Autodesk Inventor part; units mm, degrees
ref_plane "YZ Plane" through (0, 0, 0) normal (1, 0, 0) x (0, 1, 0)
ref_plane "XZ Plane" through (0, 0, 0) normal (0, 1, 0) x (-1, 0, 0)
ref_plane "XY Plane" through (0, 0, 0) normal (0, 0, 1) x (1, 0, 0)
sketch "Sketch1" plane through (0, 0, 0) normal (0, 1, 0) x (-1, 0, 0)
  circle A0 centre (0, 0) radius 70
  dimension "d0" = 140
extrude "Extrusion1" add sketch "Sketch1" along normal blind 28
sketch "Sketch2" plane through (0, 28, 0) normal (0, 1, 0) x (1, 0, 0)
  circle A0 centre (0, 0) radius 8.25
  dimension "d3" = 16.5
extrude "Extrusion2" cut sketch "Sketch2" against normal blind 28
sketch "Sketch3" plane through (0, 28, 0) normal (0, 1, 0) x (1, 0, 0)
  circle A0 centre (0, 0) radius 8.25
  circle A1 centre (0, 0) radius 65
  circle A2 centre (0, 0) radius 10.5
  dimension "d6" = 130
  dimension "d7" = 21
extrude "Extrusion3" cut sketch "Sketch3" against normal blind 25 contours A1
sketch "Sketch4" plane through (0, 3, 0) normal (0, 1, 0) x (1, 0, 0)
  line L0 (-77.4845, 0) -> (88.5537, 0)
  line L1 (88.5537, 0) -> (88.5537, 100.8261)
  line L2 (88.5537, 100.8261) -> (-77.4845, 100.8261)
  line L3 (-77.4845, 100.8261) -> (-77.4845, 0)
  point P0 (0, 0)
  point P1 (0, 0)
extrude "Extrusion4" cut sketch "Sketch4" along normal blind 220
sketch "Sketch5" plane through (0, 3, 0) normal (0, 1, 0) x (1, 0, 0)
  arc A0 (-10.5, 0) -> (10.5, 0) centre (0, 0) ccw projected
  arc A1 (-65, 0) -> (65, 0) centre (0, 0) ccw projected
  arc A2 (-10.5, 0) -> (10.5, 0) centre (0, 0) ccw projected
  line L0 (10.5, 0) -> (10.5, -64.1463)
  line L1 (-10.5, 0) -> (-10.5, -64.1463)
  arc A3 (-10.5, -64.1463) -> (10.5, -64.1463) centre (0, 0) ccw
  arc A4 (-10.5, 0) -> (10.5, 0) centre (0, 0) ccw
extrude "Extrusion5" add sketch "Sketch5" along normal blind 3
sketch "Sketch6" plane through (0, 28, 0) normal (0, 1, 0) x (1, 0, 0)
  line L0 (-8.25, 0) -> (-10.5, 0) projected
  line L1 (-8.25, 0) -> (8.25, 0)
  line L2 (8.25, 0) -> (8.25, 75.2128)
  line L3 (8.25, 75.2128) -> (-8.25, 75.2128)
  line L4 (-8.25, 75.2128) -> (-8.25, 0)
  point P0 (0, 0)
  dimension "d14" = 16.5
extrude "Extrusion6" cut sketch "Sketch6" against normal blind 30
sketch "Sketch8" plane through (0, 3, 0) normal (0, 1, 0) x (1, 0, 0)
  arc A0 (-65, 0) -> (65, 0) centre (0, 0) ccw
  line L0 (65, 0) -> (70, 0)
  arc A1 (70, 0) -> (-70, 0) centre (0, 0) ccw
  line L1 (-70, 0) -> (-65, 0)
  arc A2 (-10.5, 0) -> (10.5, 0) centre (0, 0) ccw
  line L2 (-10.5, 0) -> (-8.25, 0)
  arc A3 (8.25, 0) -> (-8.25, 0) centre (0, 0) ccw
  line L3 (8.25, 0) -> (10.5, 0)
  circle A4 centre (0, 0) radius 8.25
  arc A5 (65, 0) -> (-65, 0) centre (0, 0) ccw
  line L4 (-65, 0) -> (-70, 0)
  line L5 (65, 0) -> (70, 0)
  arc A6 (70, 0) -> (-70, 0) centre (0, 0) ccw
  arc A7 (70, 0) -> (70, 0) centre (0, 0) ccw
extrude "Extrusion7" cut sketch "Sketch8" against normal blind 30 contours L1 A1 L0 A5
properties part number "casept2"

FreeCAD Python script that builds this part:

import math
import FreeCAD as App
import Part
import Sketcher
Q = App.Units.Quantity

doc = App.newDocument("Part")
body = doc.addObject("PartDesign::Body", "Body")

# Sketch on XZ plane
sketch1 = body.newObject("Sketcher::SketchObject", "Sketch")
sketch1.AttachmentSupport = (doc.getObject("XZ_Plane"), [""])
sketch1.MapMode = "FlatFace"
sketch1.addGeometry(Part.Circle(App.Vector(0, 0, 0), App.Vector(0, 0, 1), 70), False)
sketch1.addConstraint([
    Sketcher.Constraint("Coincident", 0, 3, -1, 1),
    Sketcher.Constraint("Diameter", 0, Q("140 mm")),
])
pad1 = body.newObject("PartDesign::Pad", "Pad")
pad1.Profile = sketch1
pad1.Length = 28
pad1.Reversed = True

# Sketch on XZ plane
sketch2 = body.newObject("Sketcher::SketchObject", "Sketch001")
sketch2.AttachmentSupport = (doc.getObject("XZ_Plane"), [""])
sketch2.MapMode = "FlatFace"
sketch2.AttachmentOffset = App.Placement(App.Vector(0, 0, -28), App.Rotation())
sketch2.addGeometry(Part.Circle(App.Vector(0, 0, 0), App.Vector(0, 0, 1), 8.25), False)
sketch2.addConstraint([
    Sketcher.Constraint("Coincident", 0, 3, -1, 1),
    Sketcher.Constraint("Diameter", 0, Q("16.5 mm")),
])
pocket1 = body.newObject("PartDesign::Pocket", "Pocket")
pocket1.Profile = sketch2
pocket1.Length = 28
pocket1.Reversed = True

# Sketch on XZ plane
sketch3 = body.newObject("Sketcher::SketchObject", "Sketch002")
sketch3.AttachmentSupport = (doc.getObject("XZ_Plane"), [""])
sketch3.MapMode = "FlatFace"
sketch3.AttachmentOffset = App.Placement(App.Vector(0, 0, -28), App.Rotation())
sketch3.addGeometry([
    Part.Circle(App.Vector(0, 0, 0), App.Vector(0, 0, 1), 65),
    Part.Circle(App.Vector(0, 0, 0), App.Vector(0, 0, 1), 10.5),
], False)
sketch3.addConstraint([
    Sketcher.Constraint("Coincident", 0, 3, -1, 1),
    Sketcher.Constraint("Coincident", 1, 3, -1, 1),
    Sketcher.Constraint("Diameter", 0, Q("130 mm")),
    Sketcher.Constraint("Diameter", 1, Q("21 mm")),
])
pocket2 = body.newObject("PartDesign::Pocket", "Pocket001")
pocket2.Profile = sketch3
pocket2.Length = 25
pocket2.Reversed = True

# Sketch on XZ plane
sketch4 = body.newObject("Sketcher::SketchObject", "Sketch003")
sketch4.AttachmentSupport = (doc.getObject("XZ_Plane"), [""])
sketch4.MapMode = "FlatFace"
sketch4.AttachmentOffset = App.Placement(App.Vector(0, 0, -3), App.Rotation())
sketch4.addGeometry([
    Part.LineSegment(App.Vector(-77.4845, -100.8261, 0), App.Vector(-77.4845, 0, 0)),
    Part.LineSegment(App.Vector(-77.4845, 0, 0), App.Vector(88.5537, 0, 0)),
    Part.LineSegment(App.Vector(88.5537, 0, 0), App.Vector(88.5537, -100.8261, 0)),
    Part.LineSegment(App.Vector(88.5537, -100.8261, 0), App.Vector(-77.4845, -100.8261, 0)),
], False)
sketch4.addConstraint([
    Sketcher.Constraint("Coincident", 0, 2, 1, 1),
    Sketcher.Constraint("Coincident", 1, 2, 2, 1),
    Sketcher.Constraint("Coincident", 2, 2, 3, 1),
    Sketcher.Constraint("Coincident", 3, 2, 0, 1),
    Sketcher.Constraint("Vertical", 0),
    Sketcher.Constraint("Horizontal", 1),
    Sketcher.Constraint("Vertical", 2),
    Sketcher.Constraint("Horizontal", 3),
    Sketcher.Constraint("PointOnObject", 0, 2, -1),
    Sketcher.Constraint("DistanceY", 0, 1, 0, 2, Q("100.826 mm")),
    Sketcher.Constraint("DistanceX", 1, 1, 1, 2, Q("166.0382 mm")),
    Sketcher.Constraint("DistanceX", 0, 2, -1, 1, Q("77.4845 mm")),
])
pocket3 = body.newObject("PartDesign::Pocket", "Pocket002")
pocket3.Profile = sketch4
pocket3.Length = 220

# Sketch on XZ plane
sketch5 = body.newObject("Sketcher::SketchObject", "Sketch004")
sketch5.AttachmentSupport = (doc.getObject("XZ_Plane"), [""])
sketch5.MapMode = "FlatFace"
sketch5.AttachmentOffset = App.Placement(App.Vector(0, 0, -3), App.Rotation())
sketch5.addGeometry([
    Part.ArcOfCircle(Part.Circle(App.Vector(0, 0, 0), App.Vector(0, 0, 1), 10.5), math.radians(0), math.radians(180)),
    Part.LineSegment(App.Vector(-10.5, 0, 0), App.Vector(-10.5, 64.1463, 0)),
    Part.ArcOfCircle(Part.Circle(App.Vector(0, 0, 0), App.Vector(0, 0, 1), 65), math.radians(80.703792), math.radians(99.296208)),
    Part.LineSegment(App.Vector(10.5, 64.1463, 0), App.Vector(10.5, 0, 0)),
], False)
sketch5.addConstraint([
    Sketcher.Constraint("Tangent", 0, 2, 1, 1),
    Sketcher.Constraint("Coincident", 1, 2, 2, 2),
    Sketcher.Constraint("Coincident", 2, 1, 3, 1),
    Sketcher.Constraint("Tangent", 3, 2, 0, 1),
    Sketcher.Constraint("Vertical", 1),
    Sketcher.Constraint("Vertical", 3),
    Sketcher.Constraint("Coincident", 0, 3, -1, 1),
    Sketcher.Constraint("Coincident", 2, 3, -1, 1),
    Sketcher.Constraint("Radius", 2, Q("65 mm")),
    Sketcher.Constraint("Radius", 0, Q("10.5 mm")),
])
pad2 = body.newObject("PartDesign::Pad", "Pad001")
pad2.Profile = sketch5
pad2.Length = 3
pad2.Reversed = True

# Sketch on XZ plane
sketch6 = body.newObject("Sketcher::SketchObject", "Sketch005")
sketch6.AttachmentSupport = (doc.getObject("XZ_Plane"), [""])
sketch6.MapMode = "FlatFace"
sketch6.AttachmentOffset = App.Placement(App.Vector(0, 0, -28), App.Rotation())
sketch6.addGeometry([
    Part.LineSegment(App.Vector(-8.25, -75.2128, 0), App.Vector(-8.25, 0, 0)),
    Part.LineSegment(App.Vector(-8.25, 0, 0), App.Vector(8.25, 0, 0)),
    Part.LineSegment(App.Vector(8.25, 0, 0), App.Vector(8.25, -75.2128, 0)),
    Part.LineSegment(App.Vector(8.25, -75.2128, 0), App.Vector(-8.25, -75.2128, 0)),
], False)
sketch6.addConstraint([
    Sketcher.Constraint("Coincident", 0, 2, 1, 1),
    Sketcher.Constraint("Coincident", 1, 2, 2, 1),
    Sketcher.Constraint("Coincident", 2, 2, 3, 1),
    Sketcher.Constraint("Coincident", 3, 2, 0, 1),
    Sketcher.Constraint("Vertical", 0),
    Sketcher.Constraint("Horizontal", 1),
    Sketcher.Constraint("Vertical", 2),
    Sketcher.Constraint("Horizontal", 3),
    Sketcher.Constraint("Symmetric", 0, 2, 1, 2, -1, 1),
    Sketcher.Constraint("DistanceX", 1, 1, 1, 2, Q("16.5 mm")),
    Sketcher.Constraint("DistanceY", 0, 1, 0, 2, Q("75.2128 mm")),
])
pocket4 = body.newObject("PartDesign::Pocket", "Pocket003")
pocket4.Profile = sketch6
pocket4.Length = 30
pocket4.Reversed = True

# Sketch on XZ plane
sketch7 = body.newObject("Sketcher::SketchObject", "Sketch006")
sketch7.AttachmentSupport = (doc.getObject("XZ_Plane"), [""])
sketch7.MapMode = "FlatFace"
sketch7.AttachmentOffset = App.Placement(App.Vector(0, 0, -3), App.Rotation())
sketch7.addGeometry([
    Part.LineSegment(App.Vector(-70, 0, 0), App.Vector(-65, 0, 0)),
    Part.ArcOfCircle(Part.Circle(App.Vector(0, 0, 0), App.Vector(0, 0, 1), 65), math.radians(180), math.radians(360)),
    Part.LineSegment(App.Vector(65, 0, 0), App.Vector(70, 0, 0)),
    Part.ArcOfCircle(Part.Circle(App.Vector(0, 0, 0), App.Vector(0, 0, 1), 70), math.radians(180), math.radians(360)),
], False)
sketch7.addConstraint([
    Sketcher.Constraint("Coincident", 0, 2, 1, 1),
    Sketcher.Constraint("Coincident", 1, 2, 2, 1),
    Sketcher.Constraint("Coincident", 2, 2, 3, 2),
    Sketcher.Constraint("Coincident", 3, 1, 0, 1),
    Sketcher.Constraint("Horizontal", 0),
    Sketcher.Constraint("Horizontal", 2),
    Sketcher.Constraint("Coincident", 1, 3, -1, 1),
    Sketcher.Constraint("Coincident", 3, 3, -1, 1),
    Sketcher.Constraint("PointOnObject", 0, 2, -1),
    Sketcher.Constraint("PointOnObject", 1, 2, -1),
    Sketcher.Constraint("Radius", 1, Q("65 mm")),
    Sketcher.Constraint("Radius", 3, Q("70 mm")),
])
pocket5 = body.newObject("PartDesign::Pocket", "Pocket004")
pocket5.Profile = sketch7
pocket5.Length = 30
pocket5.Reversed = True

doc.recompute()
